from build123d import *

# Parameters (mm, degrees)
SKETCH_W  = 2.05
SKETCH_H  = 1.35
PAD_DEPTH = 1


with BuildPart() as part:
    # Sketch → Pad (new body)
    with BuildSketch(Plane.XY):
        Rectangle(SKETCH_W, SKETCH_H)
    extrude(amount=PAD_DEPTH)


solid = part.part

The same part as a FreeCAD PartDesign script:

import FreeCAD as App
import Part
import Sketcher

V = App.Vector


def add_polygon(sketch, points):
    """Adds a closed chain of lines whose ends are joined by coincident constraints."""
    first, n = sketch.GeometryCount, len(points)
    for a, b in zip(points, points[1:] + points[:1]):
        sketch.addGeometry(Part.LineSegment(App.Vector(*a, 0), App.Vector(*b, 0)), False)
    for i in range(n):
        sketch.addConstraint(Sketcher.Constraint("Coincident", first + i, 2, first + (i + 1) % n, 1))

doc = App.newDocument("Part")
body = doc.addObject("PartDesign::Body", "Body")

sketch1 = body.newObject("Sketcher::SketchObject", "Sketch")
sketch1.AttachmentSupport = (doc.getObject("XY_Plane"), [""])
sketch1.MapMode = "FlatFace"
add_polygon(sketch1, [(-1.025, 0.675), (-1.025, -0.675), (1.025, -0.675), (1.025, 0.675)])
sketch1.addConstraint([
    Sketcher.Constraint("Vertical", 0),
    Sketcher.Constraint("Horizontal", 1),
    Sketcher.Constraint("Vertical", 2),
    Sketcher.Constraint("Horizontal", 3),
    Sketcher.Constraint("Symmetric", 0, 2, 2, 2, -1, 1),
    Sketcher.Constraint("DistanceX", 1, 1, 1, 2, 2.05),
    Sketcher.Constraint("DistanceY", 0, 2, 0, 1, 1.35),
])
pad1 = body.newObject("PartDesign::Pad", "Pad")
pad1.Profile = sketch1
pad1.Length = 1

doc.recompute()
